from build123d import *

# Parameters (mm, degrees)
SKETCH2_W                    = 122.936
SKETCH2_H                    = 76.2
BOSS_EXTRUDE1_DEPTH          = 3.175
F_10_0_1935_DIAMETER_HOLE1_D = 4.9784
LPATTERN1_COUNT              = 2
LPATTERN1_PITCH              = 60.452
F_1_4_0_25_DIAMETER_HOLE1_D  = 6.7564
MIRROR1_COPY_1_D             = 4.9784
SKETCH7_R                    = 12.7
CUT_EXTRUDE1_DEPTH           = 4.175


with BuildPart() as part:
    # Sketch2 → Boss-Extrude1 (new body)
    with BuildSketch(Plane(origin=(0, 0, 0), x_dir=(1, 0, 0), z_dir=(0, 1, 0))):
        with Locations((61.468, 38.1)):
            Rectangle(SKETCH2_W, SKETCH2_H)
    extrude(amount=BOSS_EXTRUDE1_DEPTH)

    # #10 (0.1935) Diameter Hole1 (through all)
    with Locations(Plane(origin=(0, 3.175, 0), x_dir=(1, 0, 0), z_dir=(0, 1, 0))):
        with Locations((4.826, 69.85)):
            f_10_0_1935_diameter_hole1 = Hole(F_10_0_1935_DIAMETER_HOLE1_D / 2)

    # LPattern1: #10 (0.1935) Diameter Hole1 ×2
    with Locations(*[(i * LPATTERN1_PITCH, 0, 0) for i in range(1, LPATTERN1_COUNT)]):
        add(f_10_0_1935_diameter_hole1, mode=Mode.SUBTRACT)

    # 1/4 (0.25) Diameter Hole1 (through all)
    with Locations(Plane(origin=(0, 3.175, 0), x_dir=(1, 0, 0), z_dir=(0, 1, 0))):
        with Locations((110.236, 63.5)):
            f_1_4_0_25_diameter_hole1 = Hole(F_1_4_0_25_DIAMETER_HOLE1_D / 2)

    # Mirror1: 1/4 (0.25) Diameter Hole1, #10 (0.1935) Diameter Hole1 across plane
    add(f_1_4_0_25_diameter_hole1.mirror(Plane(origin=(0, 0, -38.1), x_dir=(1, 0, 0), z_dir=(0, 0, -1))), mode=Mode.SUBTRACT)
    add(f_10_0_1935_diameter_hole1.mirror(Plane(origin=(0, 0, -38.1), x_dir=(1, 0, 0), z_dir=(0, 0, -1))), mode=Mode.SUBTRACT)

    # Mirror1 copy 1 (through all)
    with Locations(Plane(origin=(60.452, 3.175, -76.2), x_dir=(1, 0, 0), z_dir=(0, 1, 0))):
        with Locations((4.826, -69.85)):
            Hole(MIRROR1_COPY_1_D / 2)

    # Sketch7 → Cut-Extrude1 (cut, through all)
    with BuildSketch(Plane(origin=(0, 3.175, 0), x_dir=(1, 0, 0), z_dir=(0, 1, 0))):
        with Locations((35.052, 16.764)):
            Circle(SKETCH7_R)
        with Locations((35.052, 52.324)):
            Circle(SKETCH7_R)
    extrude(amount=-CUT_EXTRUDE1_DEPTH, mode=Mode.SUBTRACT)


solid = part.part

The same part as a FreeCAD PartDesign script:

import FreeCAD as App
import Part
import Sketcher
Q = App.Units.Quantity

doc = App.newDocument("Part")
params = doc.addObject("Spreadsheet::Sheet", "Params")
for row, (alias, value) in enumerate([
    ("sketch1_height", "3 in"),
    ("sketch1_width", "4.84 in"),
    ("pad1_length", "0.125 in"),
    ("sketch2_diameter", "0.196 in"),
    ("hole_diameter", "0.196 in"),
    ("linearpattern_pitch", "2.38 in"),
    ("sketch3_diameter", "0.266 in"),
    ("hole2_diameter", "0.266 in"),
    ("sketch4_diameter", "0.196 in"),
    ("hole3_diameter", "0.196 in"),
    ("sketch5_diameter", "1 in"),
], start=1):
    params.set(f"A{row}", alias)
    params.set(f"B{row}", "=" + value)
    params.setAlias(f"B{row}", alias)

body = doc.addObject("PartDesign::Body", "Body")

# Sketch on XZ plane
sketch1 = body.newObject("Sketcher::SketchObject", "Sketch")
sketch1.AttachmentSupport = (doc.getObject("XZ_Plane"), [""])
sketch1.MapMode = "FlatFace"
sketch1.addGeometry([
    Part.LineSegment(App.Vector(0, -76, 0), App.Vector(0, 0, 0)),
    Part.LineSegment(App.Vector(0, 0, 0), App.Vector(123, 0, 0)),
    Part.LineSegment(App.Vector(123, 0, 0), App.Vector(123, -76, 0)),
    Part.LineSegment(App.Vector(123, -76, 0), App.Vector(0, -76, 0)),
], False)
sketch1.addConstraint([
    Sketcher.Constraint("Coincident", 0, 2, 1, 1),
    Sketcher.Constraint("Coincident", 1, 2, 2, 1),
    Sketcher.Constraint("Coincident", 2, 2, 3, 1),
    Sketcher.Constraint("Coincident", 3, 2, 0, 1),
    Sketcher.Constraint("Vertical", 0),
    Sketcher.Constraint("Horizontal", 1),
    Sketcher.Constraint("Vertical", 2),
    Sketcher.Constraint("Horizontal", 3),
    Sketcher.Constraint("Coincident", 0, 2, -1, 1),
    Sketcher.Constraint("DistanceY", 0, 1, 0, 2, Q("3 in")),
    Sketcher.Constraint("DistanceX", 1, 1, 1, 2, Q("4.84 in")),
])
sketch1.setExpression("Constraints[9]", "Params.sketch1_height")
sketch1.setExpression("Constraints[10]", "Params.sketch1_width")
pad1 = body.newObject("PartDesign::Pad", "Pad")
pad1.Profile = sketch1
pad1.setExpression("Length", "Params.pad1_length")
pad1.Reversed = True

# Sketch on XZ plane
sketch2 = body.newObject("Sketcher::SketchObject", "Sketch001")
sketch2.AttachmentSupport = (doc.getObject("XZ_Plane"), [""])
sketch2.MapMode = "FlatFace"
sketch2.AttachmentOffset = App.Placement(App.Vector(0, 0, -0.125 * 25.4), App.Rotation())
sketch2.addGeometry(Part.Circle(App.Vector(4.8, -69.8, 0), App.Vector(0, 0, 1), 2.5), False)
sketch2.addConstraint([
    Sketcher.Constraint("Diameter", 0, Q("0.196 in")),
    Sketcher.Constraint("DistanceX", -1, 1, 0, 3, Q("0.19 in")),
    Sketcher.Constraint("DistanceY", 0, 3, -1, 1, Q("2.75 in")),
])
sketch2.setExpression("Constraints[0]", "Params.sketch2_diameter")
doc.recompute()
hole = body.newObject("PartDesign::Hole", "Hole")
hole.Profile = sketch2
hole.ThreadType = "None"
hole.setExpression("Diameter", "Params.hole_diameter")
hole.DepthType = "ThroughAll"
hole.Reversed = True
doc.recompute()

linearpattern = body.newObject("PartDesign::LinearPattern", "LinearPattern")
linearpattern.Originals = [hole]
linearpattern.Direction = (doc.getObject("X_Axis"), [""])
linearpattern.Mode = "offset"
linearpattern.setExpression("Offset", "Params.linearpattern_pitch")
linearpattern.Occurrences = 2
body.Tip = linearpattern

# Sketch on XZ plane
sketch3 = body.newObject("Sketcher::SketchObject", "Sketch002")
sketch3.AttachmentSupport = (doc.getObject("XZ_Plane"), [""])
sketch3.MapMode = "FlatFace"
sketch3.AttachmentOffset = App.Placement(App.Vector(0, 0, -0.125 * 25.4), App.Rotation())
sketch3.addGeometry(Part.Circle(App.Vector(110.2, -63.5, 0), App.Vector(0, 0, 1), 3.4), False)
sketch3.addConstraint([
    Sketcher.Constraint("Diameter", 0, Q("0.266 in")),
    Sketcher.Constraint("DistanceY", 0, 3, -1, 1, Q("2.5 in")),
    Sketcher.Constraint("DistanceX", -1, 1, 0, 3, Q("4.34 in")),
])
sketch3.setExpression("Constraints[0]", "Params.sketch3_diameter")
doc.recompute()
hole2 = body.newObject("PartDesign::Hole", "Hole001")
hole2.Profile = sketch3
hole2.ThreadType = "None"
hole2.setExpression("Diameter", "Params.hole2_diameter")
hole2.DepthType = "ThroughAll"
hole2.Reversed = True
doc.recompute()

datumplane = body.newObject("PartDesign::Plane", "DatumPlane")
datumplane.AttachmentSupport = (doc.getObject("XY_Plane"), [""])
datumplane.MapMode = "FlatFace"
datumplane.AttachmentOffset = App.Placement(App.Vector(0, 0, -1.5 * 25.4), App.Rotation())
mirrored = body.newObject("PartDesign::Mirrored", "Mirrored")
mirrored.Originals = [hole2, hole]
mirrored.MirrorPlane = (datumplane, [""])
body.Tip = mirrored

# Sketch on XZ plane
sketch4 = body.newObject("Sketcher::SketchObject", "Sketch003")
sketch4.AttachmentSupport = (doc.getObject("XZ_Plane"), [""])
sketch4.MapMode = "FlatFace"
sketch4.AttachmentOffset = App.Placement(App.Vector(0, 0, -0.125 * 25.4), App.Rotation())
sketch4.addGeometry(Part.Circle(App.Vector(65.3, -6.3, 0), App.Vector(0, 0, 1), 2.5), False)
sketch4.addConstraint([
    Sketcher.Constraint("Diameter", 0, Q("0.196 in")),
    Sketcher.Constraint("DistanceX", -1, 1, 0, 3, Q("2.57 in")),
    Sketcher.Constraint("DistanceY", 0, 3, -1, 1, Q("0.25 in")),
])
sketch4.setExpression("Constraints[0]", "Params.sketch4_diameter")
doc.recompute()
hole3 = body.newObject("PartDesign::Hole", "Hole002")
hole3.Profile = sketch4
hole3.ThreadType = "None"
hole3.setExpression("Diameter", "Params.hole3_diameter")
hole3.DepthType = "ThroughAll"
hole3.Reversed = True

# Sketch on XZ plane
sketch5 = body.newObject("Sketcher::SketchObject", "Sketch004")
sketch5.AttachmentSupport = (doc.getObject("XZ_Plane"), [""])
sketch5.MapMode = "FlatFace"
sketch5.AttachmentOffset = App.Placement(App.Vector(0, 0, -0.125 * 25.4), App.Rotation())
sketch5.addGeometry([
    Part.Circle(App.Vector(35, -17, 0), App.Vector(0, 0, 1), 13),
    Part.Circle(App.Vector(35, -52, 0), App.Vector(0, 0, 1), 13),
], False)
sketch5.addConstraint([
    Sketcher.Constraint("Equal", 0, 1),
    Sketcher.Constraint("Vertical", 0, 3, 1, 3),
    Sketcher.Constraint("Diameter", 0, Q("1 in")),
    Sketcher.Constraint("DistanceY", 1, 3, 0, 3, Q("1.4 in")),
    Sketcher.Constraint("DistanceX", -1, 1, 0, 3, Q("1.38 in")),
    Sketcher.Constraint("DistanceY", 0, 3, -1, 1, Q("0.66 in")),
])
sketch5.setExpression("Constraints[2]", "Params.sketch5_diameter")
pocket1 = body.newObject("PartDesign::Pocket", "Pocket")
pocket1.Profile = sketch5
pocket1.Type = "ThroughAll"
pocket1.Reversed = True

doc.recompute()
